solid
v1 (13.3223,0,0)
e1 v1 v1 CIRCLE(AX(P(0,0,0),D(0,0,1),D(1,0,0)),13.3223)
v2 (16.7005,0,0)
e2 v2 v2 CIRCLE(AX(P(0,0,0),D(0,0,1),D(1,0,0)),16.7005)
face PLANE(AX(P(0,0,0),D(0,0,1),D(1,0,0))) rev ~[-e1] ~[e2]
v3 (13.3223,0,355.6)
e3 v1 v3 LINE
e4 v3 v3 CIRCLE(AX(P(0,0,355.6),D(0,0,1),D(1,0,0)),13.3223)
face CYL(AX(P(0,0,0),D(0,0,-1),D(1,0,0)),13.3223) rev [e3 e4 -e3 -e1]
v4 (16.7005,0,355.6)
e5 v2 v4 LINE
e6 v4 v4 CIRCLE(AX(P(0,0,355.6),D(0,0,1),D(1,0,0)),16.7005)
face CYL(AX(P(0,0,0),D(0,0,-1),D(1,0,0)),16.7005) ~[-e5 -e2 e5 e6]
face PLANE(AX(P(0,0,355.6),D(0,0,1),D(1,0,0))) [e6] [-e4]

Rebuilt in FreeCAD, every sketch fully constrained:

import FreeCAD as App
import Part
import Sketcher
from FreeCAD import Vector
Q = App.Units.Quantity

doc = App.newDocument("Part")
params = doc.addObject("Spreadsheet::Sheet", "Params")
for row, (alias, value) in enumerate([
    ("sketch1_diameter", "1.315 in"),
    ("sketch1_diameter2", "1.049 in"),
    ("pad1_length", "14 in"),
], start=1):
    params.set(f"A{row}", alias)
    params.set(f"B{row}", "=" + value)
    params.setAlias(f"B{row}", alias)

body = doc.addObject("PartDesign::Body", "Body")

# Sketch on XY plane
sketch1 = body.newObject("Sketcher::SketchObject", "Sketch")
sketch1.AttachmentSupport = (doc.getObject("XY_Plane"), [""])
sketch1.MapMode = "FlatFace"
sketch1.addGeometry([
    Part.Circle(Vector(0, 0, 0), Vector(0, 0, 1), 17),
    Part.Circle(Vector(0, 0, 0), Vector(0, 0, 1), 13),
], False)
sketch1.addConstraint([
    Sketcher.Constraint("Coincident", 0, 3, -1, 1),
    Sketcher.Constraint("Coincident", 1, 3, -1, 1),
    Sketcher.Constraint("Diameter", 0, Q("1.315 in")),
    Sketcher.Constraint("Diameter", 1, Q("1.049 in")),
])
sketch1.setExpression("Constraints[2]", "Params.sketch1_diameter")
sketch1.setExpression("Constraints[3]", "Params.sketch1_diameter2")
pad1 = body.newObject("PartDesign::Pad", "Pad")
pad1.Profile = sketch1
pad1.setExpression("Length", "Params.pad1_length")

doc.recompute()
